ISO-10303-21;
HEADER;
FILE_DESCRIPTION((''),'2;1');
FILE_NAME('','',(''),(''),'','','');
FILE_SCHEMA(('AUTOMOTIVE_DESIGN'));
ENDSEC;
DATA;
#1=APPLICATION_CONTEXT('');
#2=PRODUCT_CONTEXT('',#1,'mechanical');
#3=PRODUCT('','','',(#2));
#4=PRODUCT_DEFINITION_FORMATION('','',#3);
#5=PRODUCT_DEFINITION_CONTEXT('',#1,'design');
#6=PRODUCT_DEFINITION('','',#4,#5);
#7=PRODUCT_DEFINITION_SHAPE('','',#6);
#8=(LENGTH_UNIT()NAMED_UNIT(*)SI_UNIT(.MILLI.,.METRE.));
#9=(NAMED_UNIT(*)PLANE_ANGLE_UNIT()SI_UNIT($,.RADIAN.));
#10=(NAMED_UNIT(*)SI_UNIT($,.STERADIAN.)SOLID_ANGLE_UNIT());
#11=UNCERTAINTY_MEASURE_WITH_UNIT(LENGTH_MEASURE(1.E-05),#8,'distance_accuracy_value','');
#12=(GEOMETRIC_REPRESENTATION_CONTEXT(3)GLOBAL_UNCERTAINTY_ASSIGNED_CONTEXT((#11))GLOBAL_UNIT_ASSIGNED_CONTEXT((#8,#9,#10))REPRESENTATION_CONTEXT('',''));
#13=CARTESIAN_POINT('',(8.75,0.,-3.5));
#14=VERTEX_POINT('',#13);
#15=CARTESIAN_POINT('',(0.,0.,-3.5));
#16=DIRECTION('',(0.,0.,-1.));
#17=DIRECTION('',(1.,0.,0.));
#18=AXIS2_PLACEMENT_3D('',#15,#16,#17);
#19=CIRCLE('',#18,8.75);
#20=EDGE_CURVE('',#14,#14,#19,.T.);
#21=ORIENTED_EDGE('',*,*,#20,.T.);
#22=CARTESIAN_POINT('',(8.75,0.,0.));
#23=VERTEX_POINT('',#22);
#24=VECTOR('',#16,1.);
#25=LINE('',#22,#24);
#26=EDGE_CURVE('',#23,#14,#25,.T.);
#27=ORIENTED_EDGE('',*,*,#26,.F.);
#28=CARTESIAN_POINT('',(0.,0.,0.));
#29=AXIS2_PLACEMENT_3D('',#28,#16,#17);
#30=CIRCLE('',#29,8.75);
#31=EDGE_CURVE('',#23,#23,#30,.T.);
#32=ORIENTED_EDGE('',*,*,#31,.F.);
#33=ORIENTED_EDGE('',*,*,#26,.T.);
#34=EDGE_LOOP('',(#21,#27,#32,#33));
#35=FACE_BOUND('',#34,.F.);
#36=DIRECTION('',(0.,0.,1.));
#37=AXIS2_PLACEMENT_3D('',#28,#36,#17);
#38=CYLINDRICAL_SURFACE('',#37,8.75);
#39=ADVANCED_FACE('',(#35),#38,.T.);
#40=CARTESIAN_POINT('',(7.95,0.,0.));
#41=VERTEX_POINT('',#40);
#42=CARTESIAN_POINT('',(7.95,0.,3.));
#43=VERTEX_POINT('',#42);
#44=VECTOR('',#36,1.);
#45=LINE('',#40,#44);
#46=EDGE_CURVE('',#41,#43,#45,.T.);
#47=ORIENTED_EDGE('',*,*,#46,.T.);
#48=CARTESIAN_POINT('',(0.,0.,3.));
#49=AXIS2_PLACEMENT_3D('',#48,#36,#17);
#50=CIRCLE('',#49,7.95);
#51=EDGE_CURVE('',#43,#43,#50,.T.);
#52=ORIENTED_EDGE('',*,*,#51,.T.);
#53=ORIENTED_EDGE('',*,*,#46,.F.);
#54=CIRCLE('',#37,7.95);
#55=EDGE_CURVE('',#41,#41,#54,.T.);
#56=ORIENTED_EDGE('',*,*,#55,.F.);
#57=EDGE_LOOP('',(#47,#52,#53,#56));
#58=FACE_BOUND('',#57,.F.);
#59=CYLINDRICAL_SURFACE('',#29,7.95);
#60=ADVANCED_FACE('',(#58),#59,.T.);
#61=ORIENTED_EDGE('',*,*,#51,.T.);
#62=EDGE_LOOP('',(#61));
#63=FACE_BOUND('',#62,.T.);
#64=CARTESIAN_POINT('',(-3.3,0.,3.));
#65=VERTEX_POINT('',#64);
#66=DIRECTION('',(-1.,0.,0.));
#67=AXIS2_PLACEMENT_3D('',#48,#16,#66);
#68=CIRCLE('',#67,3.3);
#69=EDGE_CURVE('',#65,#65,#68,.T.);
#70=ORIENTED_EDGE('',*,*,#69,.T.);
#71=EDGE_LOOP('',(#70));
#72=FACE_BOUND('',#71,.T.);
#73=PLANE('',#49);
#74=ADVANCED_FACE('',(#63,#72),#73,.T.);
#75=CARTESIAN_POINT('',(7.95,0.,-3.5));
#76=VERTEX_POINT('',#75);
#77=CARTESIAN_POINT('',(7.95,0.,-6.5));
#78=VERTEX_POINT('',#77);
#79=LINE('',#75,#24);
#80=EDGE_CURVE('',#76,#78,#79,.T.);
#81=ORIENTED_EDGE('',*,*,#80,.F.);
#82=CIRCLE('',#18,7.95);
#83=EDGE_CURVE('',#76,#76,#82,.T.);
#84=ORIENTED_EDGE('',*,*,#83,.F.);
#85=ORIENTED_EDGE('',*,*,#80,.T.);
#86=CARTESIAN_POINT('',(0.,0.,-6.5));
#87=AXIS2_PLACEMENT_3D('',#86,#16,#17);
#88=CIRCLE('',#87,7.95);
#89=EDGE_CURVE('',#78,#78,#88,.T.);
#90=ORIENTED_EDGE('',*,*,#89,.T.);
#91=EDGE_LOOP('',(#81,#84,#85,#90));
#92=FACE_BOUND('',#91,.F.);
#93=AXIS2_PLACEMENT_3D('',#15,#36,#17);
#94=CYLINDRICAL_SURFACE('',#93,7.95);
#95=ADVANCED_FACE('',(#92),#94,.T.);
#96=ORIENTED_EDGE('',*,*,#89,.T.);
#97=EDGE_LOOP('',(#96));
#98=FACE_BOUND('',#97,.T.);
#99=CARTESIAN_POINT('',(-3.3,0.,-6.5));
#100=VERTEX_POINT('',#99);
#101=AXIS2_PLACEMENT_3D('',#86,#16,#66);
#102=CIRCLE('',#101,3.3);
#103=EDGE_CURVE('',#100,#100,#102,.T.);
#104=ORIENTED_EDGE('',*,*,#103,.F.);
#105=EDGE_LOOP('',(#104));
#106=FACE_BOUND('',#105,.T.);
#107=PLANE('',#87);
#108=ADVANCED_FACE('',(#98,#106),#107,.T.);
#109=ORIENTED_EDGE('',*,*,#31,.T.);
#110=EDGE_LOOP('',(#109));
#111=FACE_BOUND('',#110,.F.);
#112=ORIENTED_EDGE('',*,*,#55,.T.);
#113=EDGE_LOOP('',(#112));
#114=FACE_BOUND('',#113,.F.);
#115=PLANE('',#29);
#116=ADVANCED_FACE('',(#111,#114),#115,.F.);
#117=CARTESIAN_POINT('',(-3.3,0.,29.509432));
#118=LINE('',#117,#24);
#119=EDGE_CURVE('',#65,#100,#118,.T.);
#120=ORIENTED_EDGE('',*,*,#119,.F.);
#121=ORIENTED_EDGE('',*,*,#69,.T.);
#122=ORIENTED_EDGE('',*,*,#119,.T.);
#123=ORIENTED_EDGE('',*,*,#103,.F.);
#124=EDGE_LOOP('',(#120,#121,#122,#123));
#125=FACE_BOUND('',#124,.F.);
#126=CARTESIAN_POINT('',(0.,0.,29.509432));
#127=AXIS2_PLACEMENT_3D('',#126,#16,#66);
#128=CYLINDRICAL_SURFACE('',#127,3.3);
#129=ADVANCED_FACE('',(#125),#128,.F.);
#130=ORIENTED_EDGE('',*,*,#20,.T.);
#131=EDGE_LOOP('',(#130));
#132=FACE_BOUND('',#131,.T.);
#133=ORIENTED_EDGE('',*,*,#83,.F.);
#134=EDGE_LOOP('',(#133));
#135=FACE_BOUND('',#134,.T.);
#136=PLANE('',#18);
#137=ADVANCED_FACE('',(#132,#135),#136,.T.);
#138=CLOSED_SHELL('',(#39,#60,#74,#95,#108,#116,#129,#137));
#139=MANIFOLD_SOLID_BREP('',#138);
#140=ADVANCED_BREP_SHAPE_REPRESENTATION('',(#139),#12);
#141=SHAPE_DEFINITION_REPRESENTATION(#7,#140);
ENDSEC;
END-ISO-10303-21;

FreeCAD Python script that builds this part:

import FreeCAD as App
import Part
import Sketcher
from FreeCAD import Vector
Q = App.Units.Quantity

doc = App.newDocument("Part")
body = doc.addObject("PartDesign::Body", "Body")

# Sketch on XY plane
sketch1 = body.newObject("Sketcher::SketchObject", "Sketch")
sketch1.AttachmentSupport = (doc.getObject("XY_Plane"), [""])
sketch1.MapMode = "FlatFace"
sketch1.addGeometry(Part.Circle(Vector(0, 0, 0), Vector(0, 0, 1), 8), False)
sketch1.addConstraint([
    Sketcher.Constraint("Coincident", 0, 3, -1, 1),
    Sketcher.Constraint("Diameter", 0, Q("15.9 mm")),
])
pad1 = body.newObject("PartDesign::Pad", "Pad")
pad1.Profile = sketch1
pad1.Length = 3

# Sketch on XY plane
sketch2 = body.newObject("Sketcher::SketchObject", "Sketch001")
sketch2.AttachmentSupport = (doc.getObject("XY_Plane"), [""])
sketch2.MapMode = "FlatFace"
sketch2.addGeometry(Part.Circle(Vector(0, 0, 0), Vector(0, 0, 1), 9), False)
sketch2.addConstraint([
    Sketcher.Constraint("Coincident", 0, 3, -1, 1),
    Sketcher.Constraint("Diameter", 0, Q("17.5 mm")),
])
pad2 = body.newObject("PartDesign::Pad", "Pad001")
pad2.Profile = sketch2
pad2.Length = 3.5
pad2.Reversed = True

# Sketch on XY plane
sketch3 = body.newObject("Sketcher::SketchObject", "Sketch002")
sketch3.AttachmentSupport = (doc.getObject("XY_Plane"), [""])
sketch3.MapMode = "FlatFace"
sketch3.AttachmentOffset = App.Placement(Vector(0, 0, -3.5), App.Rotation())
sketch3.addGeometry(Part.Circle(Vector(0, 0, 0), Vector(0, 0, 1), 8), False)
sketch3.addConstraint([
    Sketcher.Constraint("Coincident", 0, 3, -1, 1),
    Sketcher.Constraint("Diameter", 0, Q("15.9 mm")),
])
pad3 = body.newObject("PartDesign::Pad", "Pad002")
pad3.Profile = sketch3
pad3.Length = 3
pad3.Reversed = True

# Sketch on XY plane
sketch4 = body.newObject("Sketcher::SketchObject", "Sketch003")
sketch4.AttachmentSupport = (doc.getObject("XY_Plane"), [""])
sketch4.MapMode = "FlatFace"
sketch4.AttachmentOffset = App.Placement(Vector(0, 0, 3), App.Rotation())
sketch4.addGeometry(Part.Circle(Vector(0, 0, 0), Vector(0, 0, 1), 3.3), False)
sketch4.addConstraint([
    Sketcher.Constraint("Coincident", 0, 3, -1, 1),
    Sketcher.Constraint("Diameter", 0, Q("6.6 mm")),
])
doc.recompute()
hole = body.newObject("PartDesign::Hole", "Hole")
hole.Profile = sketch4
hole.ThreadType = "None"
hole.Diameter = 6.6
hole.DepthType = "ThroughAll"

doc.recompute()
